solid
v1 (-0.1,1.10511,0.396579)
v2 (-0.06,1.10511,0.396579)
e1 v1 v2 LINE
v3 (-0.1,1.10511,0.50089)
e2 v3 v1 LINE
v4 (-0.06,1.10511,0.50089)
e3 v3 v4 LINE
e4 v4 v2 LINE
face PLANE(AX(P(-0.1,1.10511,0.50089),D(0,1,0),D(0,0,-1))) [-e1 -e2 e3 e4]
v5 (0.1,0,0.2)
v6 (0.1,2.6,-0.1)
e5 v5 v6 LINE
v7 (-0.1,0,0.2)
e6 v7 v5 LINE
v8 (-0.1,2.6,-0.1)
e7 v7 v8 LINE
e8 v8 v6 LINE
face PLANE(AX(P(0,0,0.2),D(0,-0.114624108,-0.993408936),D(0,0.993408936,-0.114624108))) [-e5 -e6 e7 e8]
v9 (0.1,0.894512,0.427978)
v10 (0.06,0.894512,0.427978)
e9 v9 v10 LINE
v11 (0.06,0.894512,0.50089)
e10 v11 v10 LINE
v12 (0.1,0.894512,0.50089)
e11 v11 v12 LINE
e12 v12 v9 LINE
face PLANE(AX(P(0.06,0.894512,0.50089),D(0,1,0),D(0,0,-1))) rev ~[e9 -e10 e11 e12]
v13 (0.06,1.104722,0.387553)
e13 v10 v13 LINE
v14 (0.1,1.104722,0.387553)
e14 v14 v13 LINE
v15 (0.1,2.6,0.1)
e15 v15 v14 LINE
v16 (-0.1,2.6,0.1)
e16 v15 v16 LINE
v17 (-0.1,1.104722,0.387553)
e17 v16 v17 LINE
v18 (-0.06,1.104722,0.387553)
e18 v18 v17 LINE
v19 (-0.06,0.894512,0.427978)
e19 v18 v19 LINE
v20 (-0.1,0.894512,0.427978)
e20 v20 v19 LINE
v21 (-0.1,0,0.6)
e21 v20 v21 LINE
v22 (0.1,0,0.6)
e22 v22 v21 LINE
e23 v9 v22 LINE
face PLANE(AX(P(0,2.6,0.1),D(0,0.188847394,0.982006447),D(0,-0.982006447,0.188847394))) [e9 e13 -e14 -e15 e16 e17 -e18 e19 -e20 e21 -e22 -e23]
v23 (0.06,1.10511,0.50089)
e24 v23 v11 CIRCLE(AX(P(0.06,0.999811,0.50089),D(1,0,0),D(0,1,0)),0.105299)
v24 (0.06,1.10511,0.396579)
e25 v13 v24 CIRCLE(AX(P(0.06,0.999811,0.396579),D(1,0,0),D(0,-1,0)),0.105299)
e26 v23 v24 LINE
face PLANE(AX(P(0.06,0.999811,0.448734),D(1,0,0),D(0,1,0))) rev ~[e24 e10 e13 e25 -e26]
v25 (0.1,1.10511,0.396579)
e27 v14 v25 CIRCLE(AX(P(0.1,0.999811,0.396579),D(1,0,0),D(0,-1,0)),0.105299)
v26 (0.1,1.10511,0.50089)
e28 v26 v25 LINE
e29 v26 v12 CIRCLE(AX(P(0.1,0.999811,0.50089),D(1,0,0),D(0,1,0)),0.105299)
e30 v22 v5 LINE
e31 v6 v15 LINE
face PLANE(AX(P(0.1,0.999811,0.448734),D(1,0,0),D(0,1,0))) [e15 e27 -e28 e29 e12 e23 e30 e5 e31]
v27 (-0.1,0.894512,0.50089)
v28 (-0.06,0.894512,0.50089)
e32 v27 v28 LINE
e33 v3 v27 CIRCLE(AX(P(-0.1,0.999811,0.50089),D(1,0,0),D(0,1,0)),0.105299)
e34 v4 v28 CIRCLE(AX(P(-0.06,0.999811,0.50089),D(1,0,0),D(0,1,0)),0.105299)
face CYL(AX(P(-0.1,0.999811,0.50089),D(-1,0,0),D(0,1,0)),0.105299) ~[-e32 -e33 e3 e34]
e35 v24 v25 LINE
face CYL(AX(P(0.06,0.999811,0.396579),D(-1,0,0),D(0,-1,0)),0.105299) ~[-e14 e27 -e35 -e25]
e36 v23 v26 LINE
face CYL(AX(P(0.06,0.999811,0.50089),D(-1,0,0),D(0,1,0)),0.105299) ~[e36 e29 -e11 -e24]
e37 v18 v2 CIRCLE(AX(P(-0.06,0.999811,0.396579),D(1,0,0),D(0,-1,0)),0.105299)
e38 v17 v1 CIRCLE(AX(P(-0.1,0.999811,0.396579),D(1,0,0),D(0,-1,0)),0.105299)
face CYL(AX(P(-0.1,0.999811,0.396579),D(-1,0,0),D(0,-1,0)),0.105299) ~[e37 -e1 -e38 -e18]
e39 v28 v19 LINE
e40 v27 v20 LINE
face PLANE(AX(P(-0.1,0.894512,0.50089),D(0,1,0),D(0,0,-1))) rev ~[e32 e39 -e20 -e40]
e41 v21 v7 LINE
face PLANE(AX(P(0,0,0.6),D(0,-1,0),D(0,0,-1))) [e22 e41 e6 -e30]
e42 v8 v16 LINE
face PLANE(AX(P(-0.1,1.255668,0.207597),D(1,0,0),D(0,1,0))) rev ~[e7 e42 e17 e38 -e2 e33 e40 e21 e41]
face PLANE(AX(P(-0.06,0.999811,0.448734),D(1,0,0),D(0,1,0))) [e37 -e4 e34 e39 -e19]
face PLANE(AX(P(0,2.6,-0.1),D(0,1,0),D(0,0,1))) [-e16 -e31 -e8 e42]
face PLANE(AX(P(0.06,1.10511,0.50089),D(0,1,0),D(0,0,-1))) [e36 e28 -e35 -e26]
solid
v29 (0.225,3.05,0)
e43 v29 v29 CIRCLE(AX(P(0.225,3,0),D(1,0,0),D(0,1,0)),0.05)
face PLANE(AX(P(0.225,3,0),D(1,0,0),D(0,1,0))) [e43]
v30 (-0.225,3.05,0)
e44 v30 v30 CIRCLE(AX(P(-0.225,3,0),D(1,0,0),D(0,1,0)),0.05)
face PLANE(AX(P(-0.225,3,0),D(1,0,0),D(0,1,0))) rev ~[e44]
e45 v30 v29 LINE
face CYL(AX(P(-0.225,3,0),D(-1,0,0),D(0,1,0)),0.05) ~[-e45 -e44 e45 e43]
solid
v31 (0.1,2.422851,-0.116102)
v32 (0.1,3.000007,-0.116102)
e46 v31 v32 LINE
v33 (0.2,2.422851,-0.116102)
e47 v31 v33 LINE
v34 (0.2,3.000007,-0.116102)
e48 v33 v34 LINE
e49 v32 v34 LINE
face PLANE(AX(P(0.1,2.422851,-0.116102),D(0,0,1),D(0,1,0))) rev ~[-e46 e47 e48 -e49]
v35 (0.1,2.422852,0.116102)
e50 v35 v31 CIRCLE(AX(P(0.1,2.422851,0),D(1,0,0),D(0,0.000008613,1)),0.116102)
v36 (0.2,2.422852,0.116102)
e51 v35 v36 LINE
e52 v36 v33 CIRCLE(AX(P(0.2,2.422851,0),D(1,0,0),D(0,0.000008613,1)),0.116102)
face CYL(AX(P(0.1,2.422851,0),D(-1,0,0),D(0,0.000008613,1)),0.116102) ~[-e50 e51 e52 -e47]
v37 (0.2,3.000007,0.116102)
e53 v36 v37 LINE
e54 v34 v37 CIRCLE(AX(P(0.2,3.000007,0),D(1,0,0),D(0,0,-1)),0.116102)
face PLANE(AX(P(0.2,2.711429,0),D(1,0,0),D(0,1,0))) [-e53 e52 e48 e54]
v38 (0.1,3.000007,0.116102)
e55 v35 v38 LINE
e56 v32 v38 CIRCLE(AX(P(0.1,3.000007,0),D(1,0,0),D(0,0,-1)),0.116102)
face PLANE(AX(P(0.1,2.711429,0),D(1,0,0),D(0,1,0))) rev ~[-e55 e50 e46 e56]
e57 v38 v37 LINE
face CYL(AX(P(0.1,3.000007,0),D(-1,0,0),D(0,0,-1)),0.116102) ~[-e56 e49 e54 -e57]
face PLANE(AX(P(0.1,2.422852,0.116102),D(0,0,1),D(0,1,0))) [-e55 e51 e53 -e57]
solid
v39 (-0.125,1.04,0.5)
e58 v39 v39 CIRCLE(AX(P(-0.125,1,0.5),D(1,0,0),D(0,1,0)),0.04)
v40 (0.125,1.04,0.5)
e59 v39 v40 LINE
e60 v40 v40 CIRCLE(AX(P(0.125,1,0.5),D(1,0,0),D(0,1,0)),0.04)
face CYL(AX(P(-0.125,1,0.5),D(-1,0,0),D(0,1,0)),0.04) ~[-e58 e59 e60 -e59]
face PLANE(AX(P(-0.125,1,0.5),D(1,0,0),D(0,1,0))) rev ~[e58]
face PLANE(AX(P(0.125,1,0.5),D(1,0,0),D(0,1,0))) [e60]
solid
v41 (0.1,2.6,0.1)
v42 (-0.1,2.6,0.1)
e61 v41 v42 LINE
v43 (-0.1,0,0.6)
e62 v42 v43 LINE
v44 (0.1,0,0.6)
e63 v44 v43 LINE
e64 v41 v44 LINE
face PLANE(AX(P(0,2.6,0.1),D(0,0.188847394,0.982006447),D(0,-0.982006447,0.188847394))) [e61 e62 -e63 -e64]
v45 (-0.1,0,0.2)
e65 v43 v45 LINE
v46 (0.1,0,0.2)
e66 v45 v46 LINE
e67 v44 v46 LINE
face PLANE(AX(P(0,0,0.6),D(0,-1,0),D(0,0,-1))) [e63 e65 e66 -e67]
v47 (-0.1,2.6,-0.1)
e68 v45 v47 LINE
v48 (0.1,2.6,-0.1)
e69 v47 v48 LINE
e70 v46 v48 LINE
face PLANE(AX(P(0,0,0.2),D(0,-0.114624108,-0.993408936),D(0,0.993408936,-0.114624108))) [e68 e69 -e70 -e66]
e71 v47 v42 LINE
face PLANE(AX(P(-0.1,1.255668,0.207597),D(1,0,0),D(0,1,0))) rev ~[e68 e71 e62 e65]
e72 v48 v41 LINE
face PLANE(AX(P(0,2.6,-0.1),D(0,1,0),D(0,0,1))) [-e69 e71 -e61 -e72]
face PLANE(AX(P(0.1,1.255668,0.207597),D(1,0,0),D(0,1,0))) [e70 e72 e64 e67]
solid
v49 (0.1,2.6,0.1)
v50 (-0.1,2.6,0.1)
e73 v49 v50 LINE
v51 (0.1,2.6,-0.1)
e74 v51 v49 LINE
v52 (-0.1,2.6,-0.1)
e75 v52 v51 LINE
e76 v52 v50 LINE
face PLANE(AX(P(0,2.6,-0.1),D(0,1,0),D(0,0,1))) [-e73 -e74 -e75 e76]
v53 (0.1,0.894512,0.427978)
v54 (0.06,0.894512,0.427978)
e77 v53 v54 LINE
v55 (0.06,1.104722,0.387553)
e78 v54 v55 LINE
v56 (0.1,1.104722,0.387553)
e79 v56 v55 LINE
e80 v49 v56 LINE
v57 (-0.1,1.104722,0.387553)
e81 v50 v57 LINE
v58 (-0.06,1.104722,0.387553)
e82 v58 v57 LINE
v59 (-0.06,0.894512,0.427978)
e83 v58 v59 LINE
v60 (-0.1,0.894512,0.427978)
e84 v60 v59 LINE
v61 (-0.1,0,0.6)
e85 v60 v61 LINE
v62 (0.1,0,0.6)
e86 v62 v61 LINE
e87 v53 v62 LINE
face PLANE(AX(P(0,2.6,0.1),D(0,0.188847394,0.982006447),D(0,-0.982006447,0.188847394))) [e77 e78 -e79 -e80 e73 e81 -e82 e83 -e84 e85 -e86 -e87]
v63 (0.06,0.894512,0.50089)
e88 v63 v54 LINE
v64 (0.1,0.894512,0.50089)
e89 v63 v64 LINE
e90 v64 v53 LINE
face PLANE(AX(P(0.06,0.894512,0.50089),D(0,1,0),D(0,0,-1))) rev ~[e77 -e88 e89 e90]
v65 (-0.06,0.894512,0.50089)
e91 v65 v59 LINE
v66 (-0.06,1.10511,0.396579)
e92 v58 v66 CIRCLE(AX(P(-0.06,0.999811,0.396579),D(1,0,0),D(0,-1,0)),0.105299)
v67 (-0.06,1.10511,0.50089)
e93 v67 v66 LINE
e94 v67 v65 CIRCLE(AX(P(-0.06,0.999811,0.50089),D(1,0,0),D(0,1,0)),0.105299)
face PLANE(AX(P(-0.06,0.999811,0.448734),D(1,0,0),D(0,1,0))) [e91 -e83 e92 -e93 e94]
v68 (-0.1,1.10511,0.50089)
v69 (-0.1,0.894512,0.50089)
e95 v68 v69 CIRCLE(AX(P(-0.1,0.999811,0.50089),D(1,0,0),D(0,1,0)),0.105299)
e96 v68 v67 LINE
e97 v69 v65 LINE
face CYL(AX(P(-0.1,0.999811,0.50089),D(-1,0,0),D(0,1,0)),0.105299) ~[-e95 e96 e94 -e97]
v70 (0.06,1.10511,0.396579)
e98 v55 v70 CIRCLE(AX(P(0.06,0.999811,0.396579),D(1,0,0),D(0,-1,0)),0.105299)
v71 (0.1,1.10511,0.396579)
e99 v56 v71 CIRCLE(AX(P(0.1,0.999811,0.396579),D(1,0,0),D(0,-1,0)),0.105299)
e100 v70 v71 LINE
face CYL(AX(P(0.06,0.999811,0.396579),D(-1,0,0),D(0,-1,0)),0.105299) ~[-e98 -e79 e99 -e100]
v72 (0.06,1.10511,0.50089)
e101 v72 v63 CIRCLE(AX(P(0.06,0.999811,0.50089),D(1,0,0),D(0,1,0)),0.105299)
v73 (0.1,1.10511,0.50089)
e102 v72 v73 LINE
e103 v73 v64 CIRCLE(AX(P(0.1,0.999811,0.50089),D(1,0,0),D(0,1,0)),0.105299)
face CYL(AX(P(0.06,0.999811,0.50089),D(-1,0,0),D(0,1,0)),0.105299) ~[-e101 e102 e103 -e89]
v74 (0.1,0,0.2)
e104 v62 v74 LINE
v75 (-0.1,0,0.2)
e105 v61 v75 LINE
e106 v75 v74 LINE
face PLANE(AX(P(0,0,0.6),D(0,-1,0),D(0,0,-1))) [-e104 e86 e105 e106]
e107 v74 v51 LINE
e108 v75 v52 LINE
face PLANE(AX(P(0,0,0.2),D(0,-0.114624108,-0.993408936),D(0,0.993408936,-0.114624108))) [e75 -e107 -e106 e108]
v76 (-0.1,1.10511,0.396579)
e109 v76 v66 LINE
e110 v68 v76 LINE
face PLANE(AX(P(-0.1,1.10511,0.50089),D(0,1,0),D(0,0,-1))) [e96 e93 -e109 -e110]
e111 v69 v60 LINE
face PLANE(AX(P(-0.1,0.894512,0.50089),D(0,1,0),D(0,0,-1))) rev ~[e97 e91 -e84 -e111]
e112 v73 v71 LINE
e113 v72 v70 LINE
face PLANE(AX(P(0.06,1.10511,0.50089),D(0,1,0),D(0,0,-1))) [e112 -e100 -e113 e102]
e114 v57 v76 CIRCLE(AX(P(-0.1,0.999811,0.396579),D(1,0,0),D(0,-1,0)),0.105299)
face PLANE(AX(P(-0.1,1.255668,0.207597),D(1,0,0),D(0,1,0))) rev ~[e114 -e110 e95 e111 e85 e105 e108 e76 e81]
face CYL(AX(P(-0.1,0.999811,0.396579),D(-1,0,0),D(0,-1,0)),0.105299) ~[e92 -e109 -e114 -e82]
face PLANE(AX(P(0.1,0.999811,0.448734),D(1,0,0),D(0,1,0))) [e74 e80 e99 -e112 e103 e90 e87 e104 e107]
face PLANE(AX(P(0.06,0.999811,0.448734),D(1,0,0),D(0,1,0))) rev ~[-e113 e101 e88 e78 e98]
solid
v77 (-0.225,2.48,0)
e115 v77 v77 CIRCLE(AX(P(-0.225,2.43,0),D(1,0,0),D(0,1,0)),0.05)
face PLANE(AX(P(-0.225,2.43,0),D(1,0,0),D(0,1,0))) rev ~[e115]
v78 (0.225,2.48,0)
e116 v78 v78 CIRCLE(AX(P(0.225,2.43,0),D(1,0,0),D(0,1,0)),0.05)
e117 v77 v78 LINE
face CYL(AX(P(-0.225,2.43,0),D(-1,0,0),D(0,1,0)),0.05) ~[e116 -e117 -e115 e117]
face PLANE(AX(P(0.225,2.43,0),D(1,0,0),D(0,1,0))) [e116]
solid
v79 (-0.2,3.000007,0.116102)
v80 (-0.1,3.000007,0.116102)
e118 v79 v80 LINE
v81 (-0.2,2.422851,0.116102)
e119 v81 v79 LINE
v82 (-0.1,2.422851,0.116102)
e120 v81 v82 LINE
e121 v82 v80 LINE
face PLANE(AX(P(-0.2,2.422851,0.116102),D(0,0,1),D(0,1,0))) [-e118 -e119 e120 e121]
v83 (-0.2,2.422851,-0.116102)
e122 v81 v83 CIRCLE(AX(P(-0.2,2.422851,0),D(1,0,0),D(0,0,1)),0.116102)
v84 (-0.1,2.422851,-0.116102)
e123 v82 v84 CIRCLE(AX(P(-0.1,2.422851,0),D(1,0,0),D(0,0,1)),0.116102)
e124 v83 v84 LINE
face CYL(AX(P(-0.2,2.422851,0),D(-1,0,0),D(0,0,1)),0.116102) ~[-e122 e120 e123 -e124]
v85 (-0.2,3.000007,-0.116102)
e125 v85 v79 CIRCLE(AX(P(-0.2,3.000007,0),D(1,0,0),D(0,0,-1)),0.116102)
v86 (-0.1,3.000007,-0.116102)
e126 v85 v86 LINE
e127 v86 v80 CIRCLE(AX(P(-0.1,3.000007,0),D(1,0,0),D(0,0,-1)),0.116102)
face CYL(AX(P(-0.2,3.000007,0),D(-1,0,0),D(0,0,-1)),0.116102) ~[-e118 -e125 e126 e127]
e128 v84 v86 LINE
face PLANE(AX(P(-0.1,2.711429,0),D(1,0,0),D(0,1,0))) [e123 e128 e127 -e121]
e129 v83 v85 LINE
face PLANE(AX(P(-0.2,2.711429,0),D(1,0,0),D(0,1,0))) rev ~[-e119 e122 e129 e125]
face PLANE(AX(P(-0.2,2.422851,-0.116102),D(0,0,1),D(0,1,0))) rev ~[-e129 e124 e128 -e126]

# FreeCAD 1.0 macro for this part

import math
import FreeCAD as App
import Part
import Sketcher

doc = App.newDocument("Part")
body = doc.addObject("PartDesign::Body", "Body")

# Sketch on YZ plane
sketch1 = body.newObject("Sketcher::SketchObject", "Sketch")
sketch1.AttachmentSupport = (doc.getObject("YZ_Plane"), [""])
sketch1.MapMode = "FlatFace"
sketch1.addGeometry([
    Part.LineSegment(App.Vector(0, 0.6, 0), App.Vector(0, 0.2, 0)),
    Part.LineSegment(App.Vector(0, 0.2, 0), App.Vector(2.6, -0.1, 0)),
    Part.LineSegment(App.Vector(2.6, -0.1, 0), App.Vector(2.6, 0.1, 0)),
    Part.LineSegment(App.Vector(2.6, 0.1, 0), App.Vector(0, 0.6, 0)),
], False)
sketch1.addConstraint([
    Sketcher.Constraint("Coincident", 0, 2, 1, 1),
    Sketcher.Constraint("Coincident", 1, 2, 2, 1),
    Sketcher.Constraint("Coincident", 2, 2, 3, 1),
    Sketcher.Constraint("Coincident", 3, 2, 0, 1),
    Sketcher.Constraint("Vertical", 0),
    Sketcher.Constraint("Vertical", 2),
    Sketcher.Constraint("PointOnObject", 0, 2, -2),
    Sketcher.Constraint("DistanceY", 0, 2, 0, 1, 0.4),
    Sketcher.Constraint("DistanceY", 2, 1, 2, 2, 0.2),
    Sketcher.Constraint("DistanceY", -1, 1, 0, 2, 0.2),
    Sketcher.Constraint("DistanceX", -1, 1, 1, 2, 2.6),
    Sketcher.Constraint("DistanceY", 1, 2, -1, 1, 0.1),
])
pad1 = body.newObject("PartDesign::Pad", "Pad")
pad1.Profile = sketch1
pad1.Length = 0.2
pad1.Midplane = True
body2 = doc.addObject("PartDesign::Body", "Body001")

# Sketch on YZ plane
sketch2 = body2.newObject("Sketcher::SketchObject", "Sketch001")
sketch2.AttachmentSupport = (doc.getObject("YZ_Plane001"), [""])
sketch2.MapMode = "FlatFace"
sketch2.AttachmentOffset = App.Placement(App.Vector(0, 0, 0.1), App.Rotation())
sketch2.addGeometry([
    Part.ArcOfCircle(Part.Circle(App.Vector(2.422851, 0, 0), App.Vector(0, 0, 1), 0.116102), math.radians(89.999507), math.radians(270)),
    Part.LineSegment(App.Vector(2.422851, -0.116102, 0), App.Vector(3.000007, -0.116102, 0)),
    Part.ArcOfCircle(Part.Circle(App.Vector(3.000007, 0, 0), App.Vector(0, 0, 1), 0.116102), math.radians(-90), math.radians(90)),
    Part.LineSegment(App.Vector(3.000007, 0.116102, 0), App.Vector(2.422852, 0.116102, 0)),
], False)
sketch2.addConstraint([
    Sketcher.Constraint("Tangent", 0, 2, 1, 1),
    Sketcher.Constraint("Tangent", 1, 2, 2, 1),
    Sketcher.Constraint("Tangent", 2, 2, 3, 1),
    Sketcher.Constraint("Coincident", 3, 2, 0, 1),
    Sketcher.Constraint("Horizontal", 1),
    Sketcher.Constraint("Horizontal", 3),
    Sketcher.Constraint("Symmetric", 0, 2, 3, 2, -1),
    Sketcher.Constraint("Radius", 0, 0.116102),
    Sketcher.Constraint("DistanceX", 1, 1, 1, 2, 0.577156),
    Sketcher.Constraint("DistanceX", -1, 1, 0, 3, 2.422851),
])
pad2 = body2.newObject("PartDesign::Pad", "Pad001")
pad2.Profile = sketch2
pad2.Length = 0.1
body3 = doc.addObject("PartDesign::Body", "Body002")

# Sketch on YZ plane
sketch3 = body3.newObject("Sketcher::SketchObject", "Sketch002")
sketch3.AttachmentSupport = (doc.getObject("YZ_Plane002"), [""])
sketch3.MapMode = "FlatFace"
sketch3.AttachmentOffset = App.Placement(App.Vector(0, 0, -0.225), App.Rotation())
sketch3.addGeometry(Part.Circle(App.Vector(3, 0, 0), App.Vector(0, 0, 1), 0.05), False)
sketch3.addConstraint([
    Sketcher.Constraint("PointOnObject", 0, 3, -1),
    Sketcher.Constraint("Diameter", 0, 0.1),
    Sketcher.Constraint("DistanceX", -1, 1, 0, 3, 3.0),
])
pad3 = body3.newObject("PartDesign::Pad", "Pad002")
pad3.Profile = sketch3
pad3.Length = 0.45
body4 = doc.addObject("PartDesign::Body", "Body003")

# Sketch on YZ plane
sketch4 = body4.newObject("Sketcher::SketchObject", "Sketch003")
sketch4.AttachmentSupport = (doc.getObject("YZ_Plane003"), [""])
sketch4.MapMode = "FlatFace"
sketch4.AttachmentOffset = App.Placement(App.Vector(0, 0, -0.2), App.Rotation())
sketch4.addGeometry([
    Part.ArcOfCircle(Part.Circle(App.Vector(2.422851, 0, 0), App.Vector(0, 0, 1), 0.116102), math.radians(90), math.radians(270)),
    Part.LineSegment(App.Vector(2.422851, -0.116102, 0), App.Vector(3.000007, -0.116102, 0)),
    Part.ArcOfCircle(Part.Circle(App.Vector(3.000007, 0, 0), App.Vector(0, 0, 1), 0.116102), math.radians(-90), math.radians(90)),
    Part.LineSegment(App.Vector(3.000007, 0.116102, 0), App.Vector(2.422851, 0.116102, 0)),
], False)
sketch4.addConstraint([
    Sketcher.Constraint("Tangent", 0, 2, 1, 1),
    Sketcher.Constraint("Tangent", 1, 2, 2, 1),
    Sketcher.Constraint("Tangent", 2, 2, 3, 1),
    Sketcher.Constraint("Tangent", 3, 2, 0, 1),
    Sketcher.Constraint("Horizontal", 1),
    Sketcher.Constraint("Horizontal", 3),
    Sketcher.Constraint("PointOnObject", 0, 3, -1),
    Sketcher.Constraint("Radius", 0, 0.116102),
    Sketcher.Constraint("DistanceX", 1, 1, 1, 2, 0.577156),
    Sketcher.Constraint("DistanceX", -1, 1, 0, 3, 2.422851),
])
pad4 = body4.newObject("PartDesign::Pad", "Pad003")
pad4.Profile = sketch4
pad4.Length = 0.1
body5 = doc.addObject("PartDesign::Body", "Body004")

# Sketch on YZ plane
sketch5 = body5.newObject("Sketcher::SketchObject", "Sketch004")
sketch5.AttachmentSupport = (doc.getObject("YZ_Plane004"), [""])
sketch5.MapMode = "FlatFace"
sketch5.AttachmentOffset = App.Placement(App.Vector(0, 0, -0.125), App.Rotation())
sketch5.addGeometry(Part.Circle(App.Vector(1, 0.5, 0), App.Vector(0, 0, 1), 0.04), False)
sketch5.addConstraint([
    Sketcher.Constraint("Diameter", 0, 0.08),
    Sketcher.Constraint("DistanceX", -1, 1, 0, 3, 1.0),
    Sketcher.Constraint("DistanceY", -1, 1, 0, 3, 0.5),
])
pad5 = body5.newObject("PartDesign::Pad", "Pad004")
pad5.Profile = sketch5
pad5.Length = 0.25
body6 = doc.addObject("PartDesign::Body", "Body005")

# Sketch on YZ plane
sketch6 = body6.newObject("Sketcher::SketchObject", "Sketch005")
sketch6.AttachmentSupport = (doc.getObject("YZ_Plane005"), [""])
sketch6.MapMode = "FlatFace"
sketch6.AttachmentOffset = App.Placement(App.Vector(0, 0, 0.06), App.Rotation())
sketch6.addGeometry([
    Part.ArcOfCircle(Part.Circle(App.Vector(0.999811, 0.50089, 0), App.Vector(0, 0, 1), 0.105299), math.radians(0), math.radians(180)),
    Part.LineSegment(App.Vector(0.894512, 0.50089, 0), App.Vector(0.894512, 0.396579, 0)),
    Part.ArcOfCircle(Part.Circle(App.Vector(0.999811, 0.396579, 0), App.Vector(0, 0, 1), 0.105299), math.radians(180), math.radians(360)),
    Part.LineSegment(App.Vector(1.10511, 0.396579, 0), App.Vector(1.10511, 0.50089, 0)),
], False)
sketch6.addConstraint([
    Sketcher.Constraint("Tangent", 0, 2, 1, 1),
    Sketcher.Constraint("Tangent", 1, 2, 2, 1),
    Sketcher.Constraint("Tangent", 2, 2, 3, 1),
    Sketcher.Constraint("Tangent", 3, 2, 0, 1),
    Sketcher.Constraint("Vertical", 1),
    Sketcher.Constraint("Vertical", 3),
    Sketcher.Constraint("Radius", 0, 0.105299),
    Sketcher.Constraint("DistanceY", 1, 2, 1, 1, 0.104311),
    Sketcher.Constraint("DistanceX", -1, 1, 0, 3, 0.999811),
    Sketcher.Constraint("DistanceY", -1, 1, 0, 3, 0.50089),
])
pad6 = body6.newObject("PartDesign::Pad", "Pad005")
pad6.Profile = sketch6
pad6.Length = 0.04
body7 = doc.addObject("PartDesign::Body", "Body006")

# Sketch on YZ plane
sketch7 = body7.newObject("Sketcher::SketchObject", "Sketch006")
sketch7.AttachmentSupport = (doc.getObject("YZ_Plane006"), [""])
sketch7.MapMode = "FlatFace"
sketch7.addGeometry([
    Part.LineSegment(App.Vector(0, 0.6, 0), App.Vector(0, 0.2, 0)),
    Part.LineSegment(App.Vector(0, 0.2, 0), App.Vector(2.6, -0.1, 0)),
    Part.LineSegment(App.Vector(2.6, -0.1, 0), App.Vector(2.6, 0.1, 0)),
    Part.LineSegment(App.Vector(2.6, 0.1, 0), App.Vector(0, 0.6, 0)),
], False)
sketch7.addConstraint([
    Sketcher.Constraint("Coincident", 0, 2, 1, 1),
    Sketcher.Constraint("Coincident", 1, 2, 2, 1),
    Sketcher.Constraint("Coincident", 2, 2, 3, 1),
    Sketcher.Constraint("Coincident", 3, 2, 0, 1),
    Sketcher.Constraint("Vertical", 0),
    Sketcher.Constraint("Vertical", 2),
    Sketcher.Constraint("PointOnObject", 0, 2, -2),
    Sketcher.Constraint("DistanceY", 0, 2, 0, 1, 0.4),
    Sketcher.Constraint("DistanceY", 2, 1, 2, 2, 0.2),
    Sketcher.Constraint("DistanceY", -1, 1, 0, 2, 0.2),
    Sketcher.Constraint("DistanceX", -1, 1, 1, 2, 2.6),
    Sketcher.Constraint("DistanceY", 1, 2, -1, 1, 0.1),
])
pad7 = body7.newObject("PartDesign::Pad", "Pad006")
pad7.Profile = sketch7
pad7.Length = 0.2
pad7.Midplane = True
doc.recompute()

boolean = body7.newObject("PartDesign::Boolean", "Boolean")
boolean.Type = "Fuse"
boolean.addObjects([body6])
body8 = doc.addObject("PartDesign::Body", "Body007")

# Sketch on YZ plane
sketch8 = body8.newObject("Sketcher::SketchObject", "Sketch007")
sketch8.AttachmentSupport = (doc.getObject("YZ_Plane007"), [""])
sketch8.MapMode = "FlatFace"
sketch8.AttachmentOffset = App.Placement(App.Vector(0, 0, -0.1), App.Rotation())
sketch8.addGeometry([
    Part.ArcOfCircle(Part.Circle(App.Vector(0.999811, 0.50089, 0), App.Vector(0, 0, 1), 0.105299), math.radians(0), math.radians(180)),
    Part.LineSegment(App.Vector(0.894512, 0.50089, 0), App.Vector(0.894512, 0.396579, 0)),
    Part.ArcOfCircle(Part.Circle(App.Vector(0.999811, 0.396579, 0), App.Vector(0, 0, 1), 0.105299), math.radians(180), math.radians(360)),
    Part.LineSegment(App.Vector(1.10511, 0.396579, 0), App.Vector(1.10511, 0.50089, 0)),
], False)
sketch8.addConstraint([
    Sketcher.Constraint("Tangent", 0, 2, 1, 1),
    Sketcher.Constraint("Tangent", 1, 2, 2, 1),
    Sketcher.Constraint("Tangent", 2, 2, 3, 1),
    Sketcher.Constraint("Tangent", 3, 2, 0, 1),
    Sketcher.Constraint("Vertical", 1),
    Sketcher.Constraint("Vertical", 3),
    Sketcher.Constraint("Radius", 0, 0.105299),
    Sketcher.Constraint("DistanceY", 1, 2, 1, 1, 0.104311),
    Sketcher.Constraint("DistanceX", -1, 1, 0, 3, 0.999811),
    Sketcher.Constraint("DistanceY", -1, 1, 0, 3, 0.50089),
])
pad8 = body8.newObject("PartDesign::Pad", "Pad007")
pad8.Profile = sketch8
pad8.Length = 0.04
body9 = doc.addObject("PartDesign::Body", "Body008")
doc.recompute()

body9.BaseFeature = body8
doc.recompute()

body10 = doc.addObject("PartDesign::Body", "Body009")
body10.BaseFeature = body7
boolean2 = body9.newObject("PartDesign::Boolean", "Boolean001")
boolean2.Type = "Fuse"
boolean2.addObjects([body10])
doc.recompute()

boolean3 = body8.newObject("PartDesign::Boolean", "Boolean002")
boolean3.Type = "Fuse"
boolean3.addObjects([body7])
body11 = doc.addObject("PartDesign::Body", "Body010")

# Sketch on YZ plane
sketch9 = body11.newObject("Sketcher::SketchObject", "Sketch008")
sketch9.AttachmentSupport = (doc.getObject("YZ_Plane010"), [""])
sketch9.MapMode = "FlatFace"
sketch9.AttachmentOffset = App.Placement(App.Vector(0, 0, -0.225), App.Rotation())
sketch9.addGeometry(Part.Circle(App.Vector(2.43, 0, 0), App.Vector(0, 0, 1), 0.05), False)
sketch9.addConstraint([
    Sketcher.Constraint("PointOnObject", 0, 3, -1),
    Sketcher.Constraint("Diameter", 0, 0.1),
    Sketcher.Constraint("DistanceX", -1, 1, 0, 3, 2.43),
])
pad9 = body11.newObject("PartDesign::Pad", "Pad008")
pad9.Profile = sketch9
pad9.Length = 0.45

doc.recompute()
